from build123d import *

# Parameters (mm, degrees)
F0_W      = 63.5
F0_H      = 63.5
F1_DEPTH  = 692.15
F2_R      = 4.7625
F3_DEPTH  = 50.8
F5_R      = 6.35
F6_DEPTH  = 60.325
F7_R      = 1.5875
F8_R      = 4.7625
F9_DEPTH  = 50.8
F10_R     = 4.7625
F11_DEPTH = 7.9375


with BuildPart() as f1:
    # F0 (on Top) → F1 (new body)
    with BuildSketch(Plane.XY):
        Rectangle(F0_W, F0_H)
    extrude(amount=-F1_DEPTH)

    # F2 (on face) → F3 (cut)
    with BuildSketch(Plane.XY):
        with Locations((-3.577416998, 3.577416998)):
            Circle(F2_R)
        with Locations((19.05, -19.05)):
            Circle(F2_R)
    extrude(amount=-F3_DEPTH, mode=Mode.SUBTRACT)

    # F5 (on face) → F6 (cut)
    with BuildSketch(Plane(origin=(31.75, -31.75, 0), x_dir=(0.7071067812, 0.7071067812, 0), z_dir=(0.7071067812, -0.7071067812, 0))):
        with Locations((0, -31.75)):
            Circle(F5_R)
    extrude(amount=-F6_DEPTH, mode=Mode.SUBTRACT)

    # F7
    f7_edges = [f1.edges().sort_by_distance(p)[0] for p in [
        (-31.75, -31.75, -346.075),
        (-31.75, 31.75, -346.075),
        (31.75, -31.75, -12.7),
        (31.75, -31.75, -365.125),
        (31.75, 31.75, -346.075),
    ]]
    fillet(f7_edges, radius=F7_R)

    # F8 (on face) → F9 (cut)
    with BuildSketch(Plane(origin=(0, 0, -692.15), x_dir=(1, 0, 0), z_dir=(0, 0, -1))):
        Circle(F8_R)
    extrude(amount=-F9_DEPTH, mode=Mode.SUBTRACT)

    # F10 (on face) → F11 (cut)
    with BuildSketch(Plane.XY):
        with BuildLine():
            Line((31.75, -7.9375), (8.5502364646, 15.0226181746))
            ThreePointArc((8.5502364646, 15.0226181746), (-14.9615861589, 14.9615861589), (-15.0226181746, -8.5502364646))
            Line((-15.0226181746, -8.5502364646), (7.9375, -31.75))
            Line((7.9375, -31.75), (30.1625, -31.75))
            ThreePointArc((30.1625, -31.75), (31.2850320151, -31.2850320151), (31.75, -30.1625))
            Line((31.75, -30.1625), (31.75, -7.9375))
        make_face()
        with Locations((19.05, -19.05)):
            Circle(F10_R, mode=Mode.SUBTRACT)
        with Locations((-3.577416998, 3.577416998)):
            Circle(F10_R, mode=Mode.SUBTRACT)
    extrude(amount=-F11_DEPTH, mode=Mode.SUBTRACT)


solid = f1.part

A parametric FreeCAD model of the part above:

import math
import FreeCAD as App
import Part
import Sketcher

V = App.Vector
Q = App.Units.Quantity


def edges_at(feature, points):
    """Names of the edges that pass closest to the given points."""
    edges = feature.Shape.Edges
    near = lambda p: min(range(len(edges)), key=lambda i: edges[i].distToShape(Part.Vertex(*p))[0])
    return sorted({f"Edge{near(p) + 1}" for p in points})

doc = App.newDocument("Part")
body = doc.addObject("PartDesign::Body", "Body")

# Sketch on XY plane
sketch1 = body.newObject("Sketcher::SketchObject", "Sketch")
sketch1.AttachmentSupport = (doc.getObject("XY_Plane"), [""])
sketch1.MapMode = "FlatFace"
sketch1.addGeometry([
    Part.LineSegment(V(-32, 32, 0), V(-32, -32, 0)),
    Part.LineSegment(V(-32, -32, 0), V(32, -32, 0)),
    Part.LineSegment(V(32, -32, 0), V(32, 32, 0)),
    Part.LineSegment(V(32, 32, 0), V(-32, 32, 0)),
], False)
sketch1.addConstraint([
    Sketcher.Constraint("Coincident", 0, 2, 1, 1),
    Sketcher.Constraint("Coincident", 1, 2, 2, 1),
    Sketcher.Constraint("Coincident", 2, 2, 3, 1),
    Sketcher.Constraint("Coincident", 3, 2, 0, 1),
    Sketcher.Constraint("Vertical", 0),
    Sketcher.Constraint("Horizontal", 1),
    Sketcher.Constraint("Vertical", 2),
    Sketcher.Constraint("Horizontal", 3),
    Sketcher.Constraint("Symmetric", 0, 2, 2, 2, -1, 1),
    Sketcher.Constraint("Equal", 3, 0),
    Sketcher.Constraint("DistanceX", 1, 1, 1, 2, Q("2.5 in")),
])
pad1 = body.newObject("PartDesign::Pad", "Pad")
pad1.Profile = sketch1
pad1.Length = Q("27.25 in")
pad1.Reversed = True

# Sketch on XY plane
sketch2 = body.newObject("Sketcher::SketchObject", "Sketch001")
sketch2.AttachmentSupport = (doc.getObject("XY_Plane"), [""])
sketch2.MapMode = "FlatFace"
sketch2.addGeometry([
    Part.Circle(V(-3.6, 3.6, 0), V(0, 0, 1), 4.8),
    Part.Circle(V(19.1, -19.1, 0), V(0, 0, 1), 4.8),
], False)
sketch2.addConstraint([
    Sketcher.Constraint("Equal", 0, 1),
    Sketcher.Constraint("Diameter", 0, Q("0.375 in")),
    Sketcher.Constraint("DistanceX", -1, 1, 1, 3, Q("0.75 in")),
    Sketcher.Constraint("DistanceY", 1, 3, -1, 1, Q("0.75 in")),
    Sketcher.Constraint("DistanceX", 0, 3, -1, 1, Q("3.577417 mm")),
    Sketcher.Constraint("DistanceY", -1, 1, 0, 3, Q("3.577417 mm")),
])
pocket1 = body.newObject("PartDesign::Pocket", "Pocket")
pocket1.Profile = sketch2
pocket1.Length = Q("2 in")

# Sketch on an angled plane
sketch3 = body.newObject("Sketcher::SketchObject", "Sketch002")
sketch3.Placement = App.Placement(V(31.75, -31.75, 0), App.Rotation(V(0.707106781, 0.707106781, 0), V(0, 0, 0.999999999), V(0.707106781, -0.707106781, 0), "ZXY"))
sketch3.addGeometry(Part.Circle(V(0, -32, 0), V(0, 0, 1), 6), False)
sketch3.addConstraint([
    Sketcher.Constraint("PointOnObject", 0, 3, -2),
    Sketcher.Constraint("Diameter", 0, Q("0.5 in")),
    Sketcher.Constraint("DistanceY", 0, 3, -1, 1, Q("1.25 in")),
])
pocket2 = body.newObject("PartDesign::Pocket", "Pocket001")
pocket2.Profile = sketch3
pocket2.Length = Q("2.375 in")
doc.recompute()

fillet = body.newObject("PartDesign::Fillet", "Fillet")
fillet.Base = (pocket2, edges_at(pocket2, [
    (-31.75, -31.75, -346.075),
    (-31.75, 31.75, -346.075),
    (31.75, -31.75, -12.7),
    (31.75, -31.75, -365.125),
    (31.75, 31.75, -346.075),
]))
fillet.Radius = Q("0.0625 in")

# Sketch on XY plane
sketch4 = body.newObject("Sketcher::SketchObject", "Sketch003")
sketch4.AttachmentSupport = (doc.getObject("XY_Plane"), [""])
sketch4.MapMode = "FlatFace"
sketch4.AttachmentOffset = App.Placement(V(0, 0, -27.25 * 25.4), App.Rotation())
sketch4.addGeometry(Part.Circle(V(0, 0, 0), V(0, 0, 1), 4.8), False)
sketch4.addConstraint([
    Sketcher.Constraint("Coincident", 0, 3, -1, 1),
    Sketcher.Constraint("Diameter", 0, Q("0.375 in")),
])
pocket3 = body.newObject("PartDesign::Pocket", "Pocket002")
pocket3.Profile = sketch4
pocket3.Length = Q("2 in")
pocket3.Reversed = True

# Sketch on XY plane
sketch5 = body.newObject("Sketcher::SketchObject", "Sketch004")
sketch5.AttachmentSupport = (doc.getObject("XY_Plane"), [""])
sketch5.MapMode = "FlatFace"
sketch5.addGeometry([
    Part.LineSegment(V(31.8, -7.9, 0), V(8.6, 15, 0)),  # 0
    Part.ArcOfCircle(Part.Circle(V(-3.2, 3.2, 0), V(0, 0, 1), 16.7), math.radians(45), math.radians(225)),  # 1
    Part.LineSegment(V(-15, -8.6, 0), V(7.9, -31.8, 0)),  # 2
    Part.LineSegment(V(7.9, -31.8, 0), V(30.2, -31.8, 0)),  # 3
    Part.ArcOfCircle(Part.Circle(V(30.2, -30.2, 0), V(0, 0, 1), 1.6), math.radians(-90), math.radians(0)),  # 4
    Part.LineSegment(V(31.8, -30.2, 0), V(31.8, -7.9, 0)),  # 5
    Part.Circle(V(19.1, -19.1, 0), V(0, 0, 1), 4.8),  # 6
    Part.Circle(V(-3.6, 3.6, 0), V(0, 0, 1), 4.8),  # 7
], False)
sketch5.addConstraint([
    Sketcher.Constraint("Tangent", 0, 2, 1, 1),
    Sketcher.Constraint("Tangent", 1, 2, 2, 1),
    Sketcher.Constraint("Coincident", 2, 2, 3, 1),
    Sketcher.Constraint("Tangent", 3, 2, 4, 1),
    Sketcher.Constraint("Tangent", 4, 2, 5, 1),
    Sketcher.Constraint("Coincident", 5, 2, 0, 1),
    Sketcher.Constraint("Horizontal", 3),
    Sketcher.Constraint("Vertical", 5),
    Sketcher.Constraint("Equal", 6, 7),
    Sketcher.Constraint("Equal", 3, 5),
    Sketcher.Constraint("Equal", 0, 2),
    Sketcher.Constraint("Diameter", 6, Q("0.375 in")),
    Sketcher.Constraint("Radius", 1, Q("0.65625 in")),
    Sketcher.Constraint("Radius", 4, Q("0.0625 in")),
    Sketcher.Constraint("DistanceY", 2, 2, 6, 3, Q("0.5 in")),
    Sketcher.Constraint("DistanceX", 6, 3, 4, 2, Q("0.5 in")),
    Sketcher.Constraint("DistanceX", 3, 1, 3, 2, Q("0.875 in")),
    Sketcher.Constraint("DistanceX", -1, 1, 6, 3, Q("0.75 in")),
    Sketcher.Constraint("DistanceY", 6, 3, -1, 1, Q("0.75 in")),
    Sketcher.Constraint("DistanceX", 1, 3, -1, 1, Q("0.125 in")),
    Sketcher.Constraint("DistanceY", 7, 3, 0, 2, Q("11.445201 mm")),
    Sketcher.Constraint("DistanceX", 1, 2, 7, 3, Q("11.445201 mm")),
])
pocket4 = body.newObject("PartDesign::Pocket", "Pocket003")
pocket4.Profile = sketch5
pocket4.Length = Q("0.3125 in")

doc.recompute()
